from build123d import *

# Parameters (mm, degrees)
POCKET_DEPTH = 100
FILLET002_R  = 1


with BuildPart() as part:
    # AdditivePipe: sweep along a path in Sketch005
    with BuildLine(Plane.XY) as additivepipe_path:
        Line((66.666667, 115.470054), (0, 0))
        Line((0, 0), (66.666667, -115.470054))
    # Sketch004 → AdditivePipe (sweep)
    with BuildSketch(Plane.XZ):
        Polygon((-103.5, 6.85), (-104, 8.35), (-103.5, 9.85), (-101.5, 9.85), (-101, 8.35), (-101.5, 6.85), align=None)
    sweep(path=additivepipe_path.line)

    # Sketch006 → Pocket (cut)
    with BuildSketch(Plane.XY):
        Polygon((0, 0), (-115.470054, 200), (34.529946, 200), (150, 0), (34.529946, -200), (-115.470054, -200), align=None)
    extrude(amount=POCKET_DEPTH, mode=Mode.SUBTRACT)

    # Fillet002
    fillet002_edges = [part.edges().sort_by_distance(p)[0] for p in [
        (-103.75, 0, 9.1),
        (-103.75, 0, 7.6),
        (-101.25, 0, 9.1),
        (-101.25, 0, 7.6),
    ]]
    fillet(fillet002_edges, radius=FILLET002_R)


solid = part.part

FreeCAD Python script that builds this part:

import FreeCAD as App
import Part
import Sketcher
Q = App.Units.Quantity


def edges_at(feature, points):
    """Names of the edges that pass closest to the given points."""
    edges = feature.Shape.Edges
    near = lambda p: min(range(len(edges)), key=lambda i: edges[i].distToShape(Part.Vertex(*p))[0])
    return sorted({f"Edge{near(p) + 1}" for p in points})

doc = App.newDocument("Part")
params = doc.addObject("Spreadsheet::Sheet", "Params")
for row, (alias, value) in enumerate([
    ("sketch1_width", "2 mm"),
    ("sketch3_width", "150 mm"),
    ("pocket1_length", "100 mm"),
    ("fillet_radius", "1 mm"),
], start=1):
    params.set(f"A{row}", alias)
    params.set(f"B{row}", "=" + value)
    params.setAlias(f"B{row}", alias)

body = doc.addObject("PartDesign::Body", "Body")

# Sketch on XZ plane
sketch1 = body.newObject("Sketcher::SketchObject", "Sketch")
sketch1.AttachmentSupport = (doc.getObject("XZ_Plane"), [""])
sketch1.MapMode = "FlatFace"
sketch1.addGeometry([
    Part.LineSegment(App.Vector(-104, 8.35, 0), App.Vector(-103.5, 6.85, 0)),  # 0
    Part.LineSegment(App.Vector(-103.5, 6.85, 0), App.Vector(-101.5, 6.85, 0)),  # 1
    Part.LineSegment(App.Vector(-101.5, 6.85, 0), App.Vector(-101, 8.35, 0)),  # 2
    Part.LineSegment(App.Vector(-101, 8.35, 0), App.Vector(-101.5, 9.85, 0)),  # 3
    Part.LineSegment(App.Vector(-101.5, 9.85, 0), App.Vector(-103.5, 9.85, 0)),  # 4
    Part.LineSegment(App.Vector(-103.5, 9.85, 0), App.Vector(-104, 8.35, 0)),  # 5
], False)
sketch1.addConstraint([
    Sketcher.Constraint("Coincident", 0, 2, 1, 1),
    Sketcher.Constraint("Coincident", 1, 2, 2, 1),
    Sketcher.Constraint("Coincident", 2, 2, 3, 1),
    Sketcher.Constraint("Coincident", 3, 2, 4, 1),
    Sketcher.Constraint("Coincident", 4, 2, 5, 1),
    Sketcher.Constraint("Coincident", 5, 2, 0, 1),
    Sketcher.Constraint("Horizontal", 1),
    Sketcher.Constraint("Horizontal", 4),
    Sketcher.Constraint("Parallel", 0, 3),
    Sketcher.Constraint("Parallel", 2, 5),
    Sketcher.Constraint("Horizontal", 2, 2, 5, 2),
    Sketcher.Constraint("Vertical", 1, 2, 3, 2),
    Sketcher.Constraint("Vertical", 0, 2, 4, 2),
    Sketcher.Constraint("DistanceX", 1, 1, 1, 2, 2.0),
    Sketcher.Constraint("DistanceX", 2, 2, -1, 1, 101.0),
    Sketcher.Constraint("DistanceX", 5, 2, -1, 1, 104.0),
    Sketcher.Constraint("DistanceY", 1, 2, 3, 2, 3.0),
    Sketcher.Constraint("DistanceY", -1, 1, 0, 2, 6.85),
])
sketch1.setExpression("Constraints[13]", "Params.sketch1_width")

# Sketch on XY plane
sketch2 = body.newObject("Sketcher::SketchObject", "Sketch001")
sketch2.AttachmentSupport = (doc.getObject("XY_Plane"), [""])
sketch2.MapMode = "FlatFace"
sketch2.addGeometry([
    Part.LineSegment(App.Vector(66.666667, 115.470054, 0), App.Vector(0, 0, 0)),
    Part.LineSegment(App.Vector(0, 0, 0), App.Vector(66.666667, -115.470054, 0)),
], False)
sketch2.addConstraint([
    Sketcher.Constraint("Coincident", 0, 2, 1, 1),
    Sketcher.Constraint("Coincident", 0, 2, -1, 1),
    Sketcher.Constraint("Symmetric", 0, 1, 1, 2, -1),
    Sketcher.Constraint("Angle", 0, Q("-120 deg")),
    Sketcher.Constraint("DistanceY", 1, 2, 0, 1, 230.940108),
])
doc.recompute()

additivepipe = body.newObject("PartDesign::AdditivePipe", "AdditivePipe")
additivepipe.Profile = sketch1
additivepipe.Spine = (sketch2, ["Edge1", "Edge2"])

# Sketch on XY plane
sketch3 = body.newObject("Sketcher::SketchObject", "Sketch002")
sketch3.AttachmentSupport = (doc.getObject("XY_Plane"), [""])
sketch3.MapMode = "FlatFace"
sketch3.addGeometry([
    Part.LineSegment(App.Vector(-115.470054, 200, 0), App.Vector(0, 0, 0)),  # 0
    Part.LineSegment(App.Vector(0, 0, 0), App.Vector(-115.470054, -200, 0)),  # 1
    Part.LineSegment(App.Vector(-115.470054, -200, 0), App.Vector(34.529946, -200, 0)),  # 2
    Part.LineSegment(App.Vector(34.529946, -200, 0), App.Vector(150, 0, 0)),  # 3
    Part.LineSegment(App.Vector(150, 0, 0), App.Vector(34.529946, 200, 0)),  # 4
    Part.LineSegment(App.Vector(34.529946, 200, 0), App.Vector(-115.470054, 200, 0)),  # 5
], False)
sketch3.addConstraint([
    Sketcher.Constraint("Coincident", 0, 2, 1, 1),
    Sketcher.Constraint("Coincident", 1, 2, 2, 1),
    Sketcher.Constraint("Coincident", 2, 2, 3, 1),
    Sketcher.Constraint("Coincident", 3, 2, 4, 1),
    Sketcher.Constraint("Coincident", 4, 2, 5, 1),
    Sketcher.Constraint("Coincident", 5, 2, 0, 1),
    Sketcher.Constraint("Horizontal", 2),
    Sketcher.Constraint("Horizontal", 5),
    Sketcher.Constraint("Coincident", 0, 2, -1, 1),
    Sketcher.Constraint("Symmetric", 2, 2, 4, 2, -1),
    Sketcher.Constraint("PointOnObject", 3, 2, -1),
    Sketcher.Constraint("Parallel", 1, 3),
    Sketcher.Constraint("Parallel", 0, 4),
    Sketcher.Constraint("DistanceX", 2, 1, 2, 2, 150.0),
    Sketcher.Constraint("Angle", 0, Q("-60 deg")),
    Sketcher.Constraint("DistanceY", 1, 2, -1, 1, 200.0),
])
sketch3.setExpression("Constraints[13]", "Params.sketch3_width")
pocket1 = body.newObject("PartDesign::Pocket", "Pocket")
pocket1.Profile = sketch3
pocket1.setExpression("Length", "Params.pocket1_length")
pocket1.Reversed = True
doc.recompute()

fillet = body.newObject("PartDesign::Fillet", "Fillet")
fillet.Base = (pocket1, edges_at(pocket1, [
    (-103.75, 0, 9.1),
    (-103.75, 0, 7.6),
    (-101.25, 0, 9.1),
    (-101.25, 0, 7.6),
]))
fillet.setExpression("Radius", "Params.fillet_radius")

doc.recompute()
